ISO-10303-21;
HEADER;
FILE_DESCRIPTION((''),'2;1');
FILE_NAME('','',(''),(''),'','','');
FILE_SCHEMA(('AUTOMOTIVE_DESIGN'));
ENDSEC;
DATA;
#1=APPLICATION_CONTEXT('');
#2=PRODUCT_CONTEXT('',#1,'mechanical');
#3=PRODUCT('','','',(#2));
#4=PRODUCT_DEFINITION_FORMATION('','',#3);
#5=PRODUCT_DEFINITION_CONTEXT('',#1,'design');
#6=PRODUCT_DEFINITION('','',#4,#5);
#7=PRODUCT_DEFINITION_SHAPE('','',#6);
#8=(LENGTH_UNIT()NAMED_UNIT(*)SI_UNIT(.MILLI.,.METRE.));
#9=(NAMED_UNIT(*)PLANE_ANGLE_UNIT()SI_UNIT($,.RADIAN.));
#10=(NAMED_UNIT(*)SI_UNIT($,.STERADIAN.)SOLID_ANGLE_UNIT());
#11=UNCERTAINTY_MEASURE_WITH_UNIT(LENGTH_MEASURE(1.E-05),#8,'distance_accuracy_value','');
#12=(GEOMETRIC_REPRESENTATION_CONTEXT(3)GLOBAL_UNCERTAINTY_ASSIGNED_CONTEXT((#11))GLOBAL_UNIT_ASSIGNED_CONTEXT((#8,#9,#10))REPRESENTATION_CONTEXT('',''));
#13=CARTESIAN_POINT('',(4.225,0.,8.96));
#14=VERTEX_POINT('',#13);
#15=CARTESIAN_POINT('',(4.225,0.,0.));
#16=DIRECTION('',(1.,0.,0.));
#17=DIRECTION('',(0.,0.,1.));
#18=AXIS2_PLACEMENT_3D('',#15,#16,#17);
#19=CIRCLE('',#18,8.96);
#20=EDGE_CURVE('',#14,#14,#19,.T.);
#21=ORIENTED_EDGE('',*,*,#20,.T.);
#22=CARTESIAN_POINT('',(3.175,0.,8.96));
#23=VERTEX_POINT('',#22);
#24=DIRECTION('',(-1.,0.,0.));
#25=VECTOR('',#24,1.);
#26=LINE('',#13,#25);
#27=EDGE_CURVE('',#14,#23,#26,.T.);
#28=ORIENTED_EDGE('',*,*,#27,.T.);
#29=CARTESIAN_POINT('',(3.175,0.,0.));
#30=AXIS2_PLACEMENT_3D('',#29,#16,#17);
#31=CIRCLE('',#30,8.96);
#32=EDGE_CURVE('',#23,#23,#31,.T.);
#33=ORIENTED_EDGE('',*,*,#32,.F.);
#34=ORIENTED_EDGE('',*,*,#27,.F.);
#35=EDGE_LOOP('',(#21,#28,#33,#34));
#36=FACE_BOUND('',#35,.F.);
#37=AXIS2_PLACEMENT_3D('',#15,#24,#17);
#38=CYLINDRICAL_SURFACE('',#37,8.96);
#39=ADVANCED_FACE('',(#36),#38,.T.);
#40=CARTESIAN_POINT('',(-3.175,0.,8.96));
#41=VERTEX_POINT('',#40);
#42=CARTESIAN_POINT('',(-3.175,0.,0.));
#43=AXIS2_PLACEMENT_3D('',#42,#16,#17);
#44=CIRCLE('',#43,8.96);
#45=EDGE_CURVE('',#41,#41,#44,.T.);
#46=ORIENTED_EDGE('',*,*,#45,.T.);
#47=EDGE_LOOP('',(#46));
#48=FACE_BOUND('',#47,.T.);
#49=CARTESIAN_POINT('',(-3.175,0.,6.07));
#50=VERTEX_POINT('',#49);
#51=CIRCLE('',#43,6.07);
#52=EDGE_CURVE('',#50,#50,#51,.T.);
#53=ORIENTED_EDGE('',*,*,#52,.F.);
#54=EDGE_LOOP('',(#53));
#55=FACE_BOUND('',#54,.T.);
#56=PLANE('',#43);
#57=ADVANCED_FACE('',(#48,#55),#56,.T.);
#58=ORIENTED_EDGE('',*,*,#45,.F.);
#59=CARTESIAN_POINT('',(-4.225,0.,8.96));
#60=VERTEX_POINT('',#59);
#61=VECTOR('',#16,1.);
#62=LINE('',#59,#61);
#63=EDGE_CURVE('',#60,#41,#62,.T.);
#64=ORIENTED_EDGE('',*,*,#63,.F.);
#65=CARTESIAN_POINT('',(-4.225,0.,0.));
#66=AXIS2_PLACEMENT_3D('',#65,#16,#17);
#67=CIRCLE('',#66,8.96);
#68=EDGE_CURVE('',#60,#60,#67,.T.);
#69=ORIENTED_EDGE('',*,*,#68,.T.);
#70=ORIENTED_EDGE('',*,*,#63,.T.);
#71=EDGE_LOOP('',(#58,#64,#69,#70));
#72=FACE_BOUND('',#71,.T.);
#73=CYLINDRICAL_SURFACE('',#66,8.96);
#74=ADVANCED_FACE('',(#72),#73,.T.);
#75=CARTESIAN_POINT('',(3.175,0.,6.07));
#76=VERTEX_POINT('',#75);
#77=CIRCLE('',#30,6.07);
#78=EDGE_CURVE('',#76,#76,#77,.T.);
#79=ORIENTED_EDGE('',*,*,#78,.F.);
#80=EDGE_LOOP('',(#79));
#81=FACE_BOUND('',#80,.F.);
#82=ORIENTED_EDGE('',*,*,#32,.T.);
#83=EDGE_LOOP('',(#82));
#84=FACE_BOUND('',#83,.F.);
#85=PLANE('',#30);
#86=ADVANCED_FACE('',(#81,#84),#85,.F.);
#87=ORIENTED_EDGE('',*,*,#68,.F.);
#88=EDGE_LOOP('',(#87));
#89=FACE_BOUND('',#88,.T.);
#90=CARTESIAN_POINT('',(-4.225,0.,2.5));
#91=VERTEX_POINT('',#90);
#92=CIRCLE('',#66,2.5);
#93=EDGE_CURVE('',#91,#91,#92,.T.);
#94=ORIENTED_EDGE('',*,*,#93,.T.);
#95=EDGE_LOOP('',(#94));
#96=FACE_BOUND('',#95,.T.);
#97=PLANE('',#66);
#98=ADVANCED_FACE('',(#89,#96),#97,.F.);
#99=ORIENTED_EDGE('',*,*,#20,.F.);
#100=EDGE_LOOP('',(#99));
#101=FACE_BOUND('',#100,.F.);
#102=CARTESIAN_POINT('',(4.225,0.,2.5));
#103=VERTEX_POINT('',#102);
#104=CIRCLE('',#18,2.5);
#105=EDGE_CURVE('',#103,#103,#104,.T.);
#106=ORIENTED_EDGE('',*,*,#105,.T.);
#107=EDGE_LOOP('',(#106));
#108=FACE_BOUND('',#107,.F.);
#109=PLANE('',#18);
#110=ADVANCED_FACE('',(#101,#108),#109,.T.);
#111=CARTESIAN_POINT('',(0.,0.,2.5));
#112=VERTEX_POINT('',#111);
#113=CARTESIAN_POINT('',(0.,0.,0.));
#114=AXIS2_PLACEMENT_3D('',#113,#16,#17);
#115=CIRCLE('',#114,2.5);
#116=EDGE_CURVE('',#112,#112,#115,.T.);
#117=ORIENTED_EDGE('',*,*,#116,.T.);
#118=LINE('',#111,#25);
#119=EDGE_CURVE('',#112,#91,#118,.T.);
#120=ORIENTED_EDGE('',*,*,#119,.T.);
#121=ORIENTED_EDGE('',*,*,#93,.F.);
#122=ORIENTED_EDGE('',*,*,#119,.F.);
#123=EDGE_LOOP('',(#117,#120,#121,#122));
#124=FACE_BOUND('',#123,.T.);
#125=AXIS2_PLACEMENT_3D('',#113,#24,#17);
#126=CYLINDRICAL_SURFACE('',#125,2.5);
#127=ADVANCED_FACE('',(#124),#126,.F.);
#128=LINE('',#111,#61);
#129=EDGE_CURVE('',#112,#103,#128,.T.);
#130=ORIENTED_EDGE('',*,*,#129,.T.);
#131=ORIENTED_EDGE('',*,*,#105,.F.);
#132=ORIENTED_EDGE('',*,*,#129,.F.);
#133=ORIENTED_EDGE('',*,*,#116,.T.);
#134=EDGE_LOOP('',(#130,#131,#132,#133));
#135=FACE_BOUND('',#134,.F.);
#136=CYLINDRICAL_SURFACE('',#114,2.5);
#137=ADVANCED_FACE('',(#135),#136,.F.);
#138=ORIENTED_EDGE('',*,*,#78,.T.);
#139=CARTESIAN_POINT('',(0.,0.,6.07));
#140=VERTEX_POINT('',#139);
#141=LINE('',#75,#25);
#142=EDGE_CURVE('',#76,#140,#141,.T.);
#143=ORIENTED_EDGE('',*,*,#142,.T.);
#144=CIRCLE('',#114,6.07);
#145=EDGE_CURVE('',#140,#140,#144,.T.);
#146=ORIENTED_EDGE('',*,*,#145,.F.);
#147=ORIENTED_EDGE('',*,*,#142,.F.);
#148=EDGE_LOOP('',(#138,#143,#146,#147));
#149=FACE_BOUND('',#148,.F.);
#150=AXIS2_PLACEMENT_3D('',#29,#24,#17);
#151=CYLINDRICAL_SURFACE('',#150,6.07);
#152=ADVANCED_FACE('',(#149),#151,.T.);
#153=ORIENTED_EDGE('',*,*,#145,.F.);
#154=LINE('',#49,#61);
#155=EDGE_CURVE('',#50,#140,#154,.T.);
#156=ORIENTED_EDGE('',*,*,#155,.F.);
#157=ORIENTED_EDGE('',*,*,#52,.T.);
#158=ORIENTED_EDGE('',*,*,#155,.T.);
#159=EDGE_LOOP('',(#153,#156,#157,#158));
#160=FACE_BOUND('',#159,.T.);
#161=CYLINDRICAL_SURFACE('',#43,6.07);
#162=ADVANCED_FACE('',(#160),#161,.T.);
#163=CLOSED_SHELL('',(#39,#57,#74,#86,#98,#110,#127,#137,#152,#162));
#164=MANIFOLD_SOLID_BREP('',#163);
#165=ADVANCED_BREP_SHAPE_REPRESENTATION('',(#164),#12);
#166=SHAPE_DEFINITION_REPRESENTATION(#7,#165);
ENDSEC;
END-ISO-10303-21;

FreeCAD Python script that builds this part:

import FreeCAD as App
import Part
import Sketcher
Q = App.Units.Quantity


def add_polygon(sketch, points):
    """Adds a closed chain of lines whose ends are joined by coincident constraints."""
    first, n = sketch.GeometryCount, len(points)
    for a, b in zip(points, points[1:] + points[:1]):
        sketch.addGeometry(Part.LineSegment(App.Vector(*a, 0), App.Vector(*b, 0)), False)
    for i in range(n):
        sketch.addConstraint(Sketcher.Constraint("Coincident", first + i, 2, first + (i + 1) % n, 1))

doc = App.newDocument("Part")
body = doc.addObject("PartDesign::Body", "Body")

# Sketch on XZ plane
sketch1 = body.newObject("Sketcher::SketchObject", "Sketch")
sketch1.AttachmentSupport = (doc.getObject("XZ_Plane"), [""])
sketch1.MapMode = "FlatFace"
add_polygon(sketch1, [(4.2, 2.5), (-4.2, 2.5), (-4.2, 9), (-3.2, 9), (-3.2, 6.1), (3.2, 6.1), (3.2, 9), (4.2, 9)])  # lines 0-7
sketch1.addConstraint(Sketcher.Constraint("Horizontal", 0))
sketch1.addConstraint(Sketcher.Constraint("Vertical", 1))
sketch1.addConstraint(Sketcher.Constraint("Horizontal", 2))
sketch1.addConstraint(Sketcher.Constraint("Vertical", 3))
sketch1.addConstraint(Sketcher.Constraint("Horizontal", 4))
sketch1.addConstraint(Sketcher.Constraint("Vertical", 5))
sketch1.addConstraint(Sketcher.Constraint("Horizontal", 6))
sketch1.addConstraint(Sketcher.Constraint("Vertical", 7))
sketch1.addConstraint(Sketcher.Constraint("Symmetric", 2, 2, 5, 2, -2))
sketch1.addConstraint(Sketcher.Constraint("Equal", 2, 6))
sketch1.addConstraint(Sketcher.Constraint("DistanceX", 2, 1, 2, 2, 1.05))
sketch1.addConstraint(Sketcher.Constraint("DistanceX", 4, 1, 4, 2, Q("0.25 in")))
sketch1.addConstraint(Sketcher.Constraint("DistanceY", -1, 1, 0, 2, 2.5))
sketch1.addConstraint(Sketcher.Constraint("DistanceY", -1, 1, 1, 2, 8.96))
sketch1.addConstraint(Sketcher.Constraint("DistanceY", -1, 1, 3, 2, 6.07))
revolution = body.newObject("PartDesign::Revolution", "Revolution")
revolution.Profile = sketch1
revolution.ReferenceAxis = (sketch1, ["H_Axis"])
revolution.Angle = 360

doc.recompute()
